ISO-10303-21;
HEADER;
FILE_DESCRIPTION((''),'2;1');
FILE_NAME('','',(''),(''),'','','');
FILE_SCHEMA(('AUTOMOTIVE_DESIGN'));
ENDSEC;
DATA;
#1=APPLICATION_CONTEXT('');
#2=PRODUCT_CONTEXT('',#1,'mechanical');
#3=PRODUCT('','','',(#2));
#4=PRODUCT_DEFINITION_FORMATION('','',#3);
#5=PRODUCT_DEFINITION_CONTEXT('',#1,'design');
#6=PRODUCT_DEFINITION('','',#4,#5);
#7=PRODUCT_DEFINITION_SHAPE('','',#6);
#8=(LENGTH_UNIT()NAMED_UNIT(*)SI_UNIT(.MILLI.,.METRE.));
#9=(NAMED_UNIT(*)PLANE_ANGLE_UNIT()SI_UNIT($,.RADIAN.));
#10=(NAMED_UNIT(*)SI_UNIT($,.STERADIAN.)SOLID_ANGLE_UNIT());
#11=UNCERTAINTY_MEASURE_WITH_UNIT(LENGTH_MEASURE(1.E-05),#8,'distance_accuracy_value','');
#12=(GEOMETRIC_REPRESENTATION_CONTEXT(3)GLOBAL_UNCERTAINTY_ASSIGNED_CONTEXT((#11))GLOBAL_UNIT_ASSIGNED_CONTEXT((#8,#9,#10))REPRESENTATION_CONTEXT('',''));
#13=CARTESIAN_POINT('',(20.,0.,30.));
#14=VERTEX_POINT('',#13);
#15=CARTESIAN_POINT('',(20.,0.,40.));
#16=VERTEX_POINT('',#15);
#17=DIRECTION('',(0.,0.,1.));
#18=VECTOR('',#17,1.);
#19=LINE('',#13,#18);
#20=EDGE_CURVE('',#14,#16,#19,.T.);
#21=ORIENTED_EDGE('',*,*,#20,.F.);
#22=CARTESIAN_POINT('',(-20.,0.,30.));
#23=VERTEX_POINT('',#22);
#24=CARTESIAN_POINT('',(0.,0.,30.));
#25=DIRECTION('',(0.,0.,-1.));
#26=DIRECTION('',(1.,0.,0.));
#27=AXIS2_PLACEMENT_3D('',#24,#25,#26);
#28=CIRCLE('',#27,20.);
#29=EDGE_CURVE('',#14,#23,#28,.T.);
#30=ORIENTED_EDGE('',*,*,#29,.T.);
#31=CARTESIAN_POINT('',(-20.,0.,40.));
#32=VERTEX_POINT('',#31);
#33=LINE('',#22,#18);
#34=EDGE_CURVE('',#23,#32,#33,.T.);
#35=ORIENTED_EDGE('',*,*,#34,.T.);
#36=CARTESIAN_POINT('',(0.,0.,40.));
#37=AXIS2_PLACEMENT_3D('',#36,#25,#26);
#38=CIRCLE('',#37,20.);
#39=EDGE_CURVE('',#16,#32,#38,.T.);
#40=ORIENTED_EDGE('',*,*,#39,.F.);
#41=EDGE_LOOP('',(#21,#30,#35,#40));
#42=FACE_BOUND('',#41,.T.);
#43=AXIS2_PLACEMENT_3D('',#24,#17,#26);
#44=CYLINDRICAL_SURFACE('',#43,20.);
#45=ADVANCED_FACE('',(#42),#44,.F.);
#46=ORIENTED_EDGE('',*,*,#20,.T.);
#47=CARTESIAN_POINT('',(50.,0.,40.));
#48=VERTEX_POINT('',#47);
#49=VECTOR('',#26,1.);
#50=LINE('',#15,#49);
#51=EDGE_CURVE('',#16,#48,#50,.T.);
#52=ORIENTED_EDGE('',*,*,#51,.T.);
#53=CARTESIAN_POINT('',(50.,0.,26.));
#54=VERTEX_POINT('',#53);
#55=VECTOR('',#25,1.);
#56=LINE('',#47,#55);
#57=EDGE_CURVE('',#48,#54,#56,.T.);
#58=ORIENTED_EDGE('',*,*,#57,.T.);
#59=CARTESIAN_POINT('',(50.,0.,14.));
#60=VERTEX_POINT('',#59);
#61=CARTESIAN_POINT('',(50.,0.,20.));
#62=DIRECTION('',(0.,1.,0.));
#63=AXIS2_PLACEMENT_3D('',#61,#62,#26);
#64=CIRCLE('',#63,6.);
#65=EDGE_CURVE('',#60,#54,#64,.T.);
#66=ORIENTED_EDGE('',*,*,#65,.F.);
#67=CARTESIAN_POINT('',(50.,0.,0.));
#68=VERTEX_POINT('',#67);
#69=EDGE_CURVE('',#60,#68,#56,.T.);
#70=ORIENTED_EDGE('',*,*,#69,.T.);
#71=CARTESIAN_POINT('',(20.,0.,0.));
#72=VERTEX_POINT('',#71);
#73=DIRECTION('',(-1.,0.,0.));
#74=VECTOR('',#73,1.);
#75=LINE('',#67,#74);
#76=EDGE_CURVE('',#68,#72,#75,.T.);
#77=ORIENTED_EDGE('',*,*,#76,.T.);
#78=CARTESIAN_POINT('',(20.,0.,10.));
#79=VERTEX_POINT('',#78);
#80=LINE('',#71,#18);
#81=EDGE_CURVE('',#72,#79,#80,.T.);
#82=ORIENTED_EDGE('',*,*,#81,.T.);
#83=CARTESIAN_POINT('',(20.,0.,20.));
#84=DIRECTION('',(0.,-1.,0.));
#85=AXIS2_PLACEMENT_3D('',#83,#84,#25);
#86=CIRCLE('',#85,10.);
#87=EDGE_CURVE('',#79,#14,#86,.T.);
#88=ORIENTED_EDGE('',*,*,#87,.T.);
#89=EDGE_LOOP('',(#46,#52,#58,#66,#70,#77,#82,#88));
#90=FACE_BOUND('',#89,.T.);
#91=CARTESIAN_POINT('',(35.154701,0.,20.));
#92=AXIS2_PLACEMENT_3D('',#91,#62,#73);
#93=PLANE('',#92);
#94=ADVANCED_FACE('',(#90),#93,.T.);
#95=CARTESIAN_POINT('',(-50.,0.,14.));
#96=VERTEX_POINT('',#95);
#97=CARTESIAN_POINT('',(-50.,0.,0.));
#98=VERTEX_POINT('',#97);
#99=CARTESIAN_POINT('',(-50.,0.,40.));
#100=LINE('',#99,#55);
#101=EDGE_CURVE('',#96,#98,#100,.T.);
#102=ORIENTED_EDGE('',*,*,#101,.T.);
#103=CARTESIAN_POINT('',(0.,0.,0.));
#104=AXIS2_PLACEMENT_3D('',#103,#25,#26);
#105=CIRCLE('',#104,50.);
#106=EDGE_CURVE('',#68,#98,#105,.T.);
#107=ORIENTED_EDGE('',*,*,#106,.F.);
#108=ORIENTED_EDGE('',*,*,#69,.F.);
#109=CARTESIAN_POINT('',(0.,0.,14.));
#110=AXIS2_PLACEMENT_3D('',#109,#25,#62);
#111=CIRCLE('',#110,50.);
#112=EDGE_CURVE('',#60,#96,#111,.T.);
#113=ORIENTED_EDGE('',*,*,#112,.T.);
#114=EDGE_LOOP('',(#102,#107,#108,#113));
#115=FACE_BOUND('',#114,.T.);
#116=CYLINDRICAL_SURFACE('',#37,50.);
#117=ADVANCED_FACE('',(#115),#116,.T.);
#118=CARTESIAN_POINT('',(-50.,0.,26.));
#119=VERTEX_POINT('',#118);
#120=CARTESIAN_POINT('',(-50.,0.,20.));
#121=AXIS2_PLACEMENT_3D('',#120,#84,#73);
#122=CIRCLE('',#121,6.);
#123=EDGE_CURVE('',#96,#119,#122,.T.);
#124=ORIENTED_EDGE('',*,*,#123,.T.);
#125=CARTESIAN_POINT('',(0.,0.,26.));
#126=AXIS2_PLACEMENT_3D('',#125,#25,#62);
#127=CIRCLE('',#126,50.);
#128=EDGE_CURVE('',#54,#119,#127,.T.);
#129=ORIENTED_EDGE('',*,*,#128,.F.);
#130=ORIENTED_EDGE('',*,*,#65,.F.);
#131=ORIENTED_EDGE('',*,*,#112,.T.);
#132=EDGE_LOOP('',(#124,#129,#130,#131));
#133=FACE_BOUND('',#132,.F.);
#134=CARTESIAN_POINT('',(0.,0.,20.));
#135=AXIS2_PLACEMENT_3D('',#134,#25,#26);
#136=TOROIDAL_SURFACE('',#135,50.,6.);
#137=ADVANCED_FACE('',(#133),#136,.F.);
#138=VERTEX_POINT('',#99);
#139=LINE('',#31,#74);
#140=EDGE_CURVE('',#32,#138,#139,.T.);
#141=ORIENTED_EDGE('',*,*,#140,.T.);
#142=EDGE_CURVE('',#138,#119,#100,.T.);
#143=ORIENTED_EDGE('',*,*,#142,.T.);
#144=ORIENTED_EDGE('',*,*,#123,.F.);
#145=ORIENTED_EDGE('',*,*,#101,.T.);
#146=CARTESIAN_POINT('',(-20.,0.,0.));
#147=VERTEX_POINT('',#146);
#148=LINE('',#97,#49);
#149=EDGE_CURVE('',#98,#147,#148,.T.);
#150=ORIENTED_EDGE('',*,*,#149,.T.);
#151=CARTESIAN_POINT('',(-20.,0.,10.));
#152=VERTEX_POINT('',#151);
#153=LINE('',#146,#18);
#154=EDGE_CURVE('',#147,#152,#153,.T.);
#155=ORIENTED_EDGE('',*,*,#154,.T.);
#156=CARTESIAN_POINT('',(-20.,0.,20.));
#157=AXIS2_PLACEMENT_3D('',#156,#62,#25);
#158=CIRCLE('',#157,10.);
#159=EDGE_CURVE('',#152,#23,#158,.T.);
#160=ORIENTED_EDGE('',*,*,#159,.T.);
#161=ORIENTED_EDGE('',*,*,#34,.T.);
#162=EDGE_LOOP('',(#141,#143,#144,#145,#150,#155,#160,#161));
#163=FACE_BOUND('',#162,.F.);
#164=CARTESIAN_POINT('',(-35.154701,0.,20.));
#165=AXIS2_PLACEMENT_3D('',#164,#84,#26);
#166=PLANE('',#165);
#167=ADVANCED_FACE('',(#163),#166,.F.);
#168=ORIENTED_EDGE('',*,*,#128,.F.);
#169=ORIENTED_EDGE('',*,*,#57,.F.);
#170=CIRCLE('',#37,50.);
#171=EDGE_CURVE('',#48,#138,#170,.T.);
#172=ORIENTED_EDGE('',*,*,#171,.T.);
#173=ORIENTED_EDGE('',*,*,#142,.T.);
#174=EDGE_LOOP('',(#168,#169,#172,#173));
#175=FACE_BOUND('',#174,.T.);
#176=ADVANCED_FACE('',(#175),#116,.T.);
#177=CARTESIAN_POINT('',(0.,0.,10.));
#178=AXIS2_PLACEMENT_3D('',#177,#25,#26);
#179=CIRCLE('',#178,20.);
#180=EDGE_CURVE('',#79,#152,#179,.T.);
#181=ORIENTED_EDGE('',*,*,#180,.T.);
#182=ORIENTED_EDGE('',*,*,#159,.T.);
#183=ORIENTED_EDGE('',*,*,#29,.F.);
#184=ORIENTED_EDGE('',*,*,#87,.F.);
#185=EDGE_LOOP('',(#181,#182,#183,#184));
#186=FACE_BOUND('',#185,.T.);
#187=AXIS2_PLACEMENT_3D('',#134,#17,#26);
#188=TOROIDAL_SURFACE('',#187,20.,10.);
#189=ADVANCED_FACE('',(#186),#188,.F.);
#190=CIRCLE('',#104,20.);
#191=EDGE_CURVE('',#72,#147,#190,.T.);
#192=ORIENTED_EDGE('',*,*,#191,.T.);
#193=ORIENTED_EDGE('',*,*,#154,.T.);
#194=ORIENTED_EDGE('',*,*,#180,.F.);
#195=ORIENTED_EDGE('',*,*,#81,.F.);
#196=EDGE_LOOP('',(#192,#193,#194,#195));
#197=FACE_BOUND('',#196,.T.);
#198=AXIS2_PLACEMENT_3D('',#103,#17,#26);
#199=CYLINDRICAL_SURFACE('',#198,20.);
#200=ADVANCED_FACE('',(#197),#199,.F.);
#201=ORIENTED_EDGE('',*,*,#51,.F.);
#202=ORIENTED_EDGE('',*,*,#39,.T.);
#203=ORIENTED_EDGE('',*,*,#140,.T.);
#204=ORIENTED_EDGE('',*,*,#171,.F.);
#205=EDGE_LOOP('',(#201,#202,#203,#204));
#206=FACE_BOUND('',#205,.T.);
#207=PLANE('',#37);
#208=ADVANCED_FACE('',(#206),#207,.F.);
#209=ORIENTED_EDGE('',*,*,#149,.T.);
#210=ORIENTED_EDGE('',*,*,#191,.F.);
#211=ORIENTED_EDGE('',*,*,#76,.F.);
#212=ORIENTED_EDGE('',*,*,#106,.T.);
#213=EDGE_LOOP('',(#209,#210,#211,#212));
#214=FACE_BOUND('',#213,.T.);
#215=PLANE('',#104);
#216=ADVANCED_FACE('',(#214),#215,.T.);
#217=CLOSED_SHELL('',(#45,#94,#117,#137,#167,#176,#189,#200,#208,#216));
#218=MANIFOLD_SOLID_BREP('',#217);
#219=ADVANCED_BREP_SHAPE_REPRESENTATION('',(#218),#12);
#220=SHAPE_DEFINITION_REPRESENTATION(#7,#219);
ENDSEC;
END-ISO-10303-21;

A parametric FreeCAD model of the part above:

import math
import FreeCAD as App
import Part
import Sketcher
from FreeCAD import Vector
Q = App.Units.Quantity

doc = App.newDocument("Part")
body = doc.addObject("PartDesign::Body", "Body")

# Sketch on XZ plane
sketch1 = body.newObject("Sketcher::SketchObject", "Sketch")
sketch1.AttachmentSupport = (doc.getObject("XZ_Plane"), [""])
sketch1.MapMode = "FlatFace"
sketch1.addGeometry(Part.LineSegment(Vector(50, 40, 0), Vector(20, 40, 0)), False)
sketch1.addGeometry(Part.LineSegment(Vector(20, 40, 0), Vector(20, 30, 0)), False)
sketch1.addGeometry(Part.ArcOfCircle(Part.Circle(Vector(20, 20, 0), Vector(0, 0, 1), 10), math.radians(-90), math.radians(90)), False)
sketch1.addGeometry(Part.LineSegment(Vector(20, 10, 0), Vector(20, 0, 0)), False)
sketch1.addGeometry(Part.LineSegment(Vector(20, 0, 0), Vector(50, 0, 0)), False)
sketch1.addGeometry(Part.LineSegment(Vector(50, 0, 0), Vector(50, 40, 0)), False)
sketch1.addConstraint(Sketcher.Constraint("Coincident", 0, 2, 1, 1))
sketch1.addConstraint(Sketcher.Constraint("Coincident", 1, 2, 2, 2))
sketch1.addConstraint(Sketcher.Constraint("Coincident", 2, 1, 3, 1))
sketch1.addConstraint(Sketcher.Constraint("Coincident", 3, 2, 4, 1))
sketch1.addConstraint(Sketcher.Constraint("Coincident", 4, 2, 5, 1))
sketch1.addConstraint(Sketcher.Constraint("Coincident", 5, 2, 0, 1))
sketch1.addConstraint(Sketcher.Constraint("Horizontal", 0))
sketch1.addConstraint(Sketcher.Constraint("Vertical", 1))
sketch1.addConstraint(Sketcher.Constraint("Vertical", 3))
sketch1.addConstraint(Sketcher.Constraint("Horizontal", 4))
sketch1.addConstraint(Sketcher.Constraint("Vertical", 5))
sketch1.addConstraint(Sketcher.Constraint("PointOnObject", 3, 2, -1))
sketch1.addConstraint(Sketcher.Constraint("Vertical", 2, 3, 0, 2))
sketch1.addConstraint(Sketcher.Constraint("Vertical", 1, 2, 2, 1))
sketch1.addConstraint(Sketcher.Constraint("Equal", 1, 3))
sketch1.addConstraint(Sketcher.Constraint("Radius", 2, Q("10 mm")))
sketch1.addConstraint(Sketcher.Constraint("DistanceX", 0, 2, 0, 1, Q("30 mm")))
sketch1.addConstraint(Sketcher.Constraint("DistanceY", 1, 2, 1, 1, Q("10 mm")))
sketch1.addConstraint(Sketcher.Constraint("DistanceX", -1, 1, 2, 3, Q("20 mm")))
revolution = body.newObject("PartDesign::Revolution", "Revolution")
revolution.Profile = sketch1
revolution.ReferenceAxis = (sketch1, ["V_Axis"])
revolution.Angle = 180
revolution.Reversed = True

# Sketch on XZ plane
sketch2 = body.newObject("Sketcher::SketchObject", "Sketch001")
sketch2.AttachmentSupport = (doc.getObject("XZ_Plane"), [""])
sketch2.MapMode = "FlatFace"
sketch2.addGeometry(Part.Circle(Vector(50, 20, 0), Vector(0, 0, 1), 6), False)
sketch2.addConstraint(Sketcher.Constraint("Diameter", 0, Q("12 mm")))
sketch2.addConstraint(Sketcher.Constraint("DistanceX", -1, 1, 0, 3, Q("50 mm")))
sketch2.addConstraint(Sketcher.Constraint("DistanceY", -1, 1, 0, 3, Q("20 mm")))
groove = body.newObject("PartDesign::Groove", "Groove")
groove.Profile = sketch2
groove.ReferenceAxis = (sketch2, ["V_Axis"])
groove.Angle = 180
groove.Reversed = True

doc.recompute()
